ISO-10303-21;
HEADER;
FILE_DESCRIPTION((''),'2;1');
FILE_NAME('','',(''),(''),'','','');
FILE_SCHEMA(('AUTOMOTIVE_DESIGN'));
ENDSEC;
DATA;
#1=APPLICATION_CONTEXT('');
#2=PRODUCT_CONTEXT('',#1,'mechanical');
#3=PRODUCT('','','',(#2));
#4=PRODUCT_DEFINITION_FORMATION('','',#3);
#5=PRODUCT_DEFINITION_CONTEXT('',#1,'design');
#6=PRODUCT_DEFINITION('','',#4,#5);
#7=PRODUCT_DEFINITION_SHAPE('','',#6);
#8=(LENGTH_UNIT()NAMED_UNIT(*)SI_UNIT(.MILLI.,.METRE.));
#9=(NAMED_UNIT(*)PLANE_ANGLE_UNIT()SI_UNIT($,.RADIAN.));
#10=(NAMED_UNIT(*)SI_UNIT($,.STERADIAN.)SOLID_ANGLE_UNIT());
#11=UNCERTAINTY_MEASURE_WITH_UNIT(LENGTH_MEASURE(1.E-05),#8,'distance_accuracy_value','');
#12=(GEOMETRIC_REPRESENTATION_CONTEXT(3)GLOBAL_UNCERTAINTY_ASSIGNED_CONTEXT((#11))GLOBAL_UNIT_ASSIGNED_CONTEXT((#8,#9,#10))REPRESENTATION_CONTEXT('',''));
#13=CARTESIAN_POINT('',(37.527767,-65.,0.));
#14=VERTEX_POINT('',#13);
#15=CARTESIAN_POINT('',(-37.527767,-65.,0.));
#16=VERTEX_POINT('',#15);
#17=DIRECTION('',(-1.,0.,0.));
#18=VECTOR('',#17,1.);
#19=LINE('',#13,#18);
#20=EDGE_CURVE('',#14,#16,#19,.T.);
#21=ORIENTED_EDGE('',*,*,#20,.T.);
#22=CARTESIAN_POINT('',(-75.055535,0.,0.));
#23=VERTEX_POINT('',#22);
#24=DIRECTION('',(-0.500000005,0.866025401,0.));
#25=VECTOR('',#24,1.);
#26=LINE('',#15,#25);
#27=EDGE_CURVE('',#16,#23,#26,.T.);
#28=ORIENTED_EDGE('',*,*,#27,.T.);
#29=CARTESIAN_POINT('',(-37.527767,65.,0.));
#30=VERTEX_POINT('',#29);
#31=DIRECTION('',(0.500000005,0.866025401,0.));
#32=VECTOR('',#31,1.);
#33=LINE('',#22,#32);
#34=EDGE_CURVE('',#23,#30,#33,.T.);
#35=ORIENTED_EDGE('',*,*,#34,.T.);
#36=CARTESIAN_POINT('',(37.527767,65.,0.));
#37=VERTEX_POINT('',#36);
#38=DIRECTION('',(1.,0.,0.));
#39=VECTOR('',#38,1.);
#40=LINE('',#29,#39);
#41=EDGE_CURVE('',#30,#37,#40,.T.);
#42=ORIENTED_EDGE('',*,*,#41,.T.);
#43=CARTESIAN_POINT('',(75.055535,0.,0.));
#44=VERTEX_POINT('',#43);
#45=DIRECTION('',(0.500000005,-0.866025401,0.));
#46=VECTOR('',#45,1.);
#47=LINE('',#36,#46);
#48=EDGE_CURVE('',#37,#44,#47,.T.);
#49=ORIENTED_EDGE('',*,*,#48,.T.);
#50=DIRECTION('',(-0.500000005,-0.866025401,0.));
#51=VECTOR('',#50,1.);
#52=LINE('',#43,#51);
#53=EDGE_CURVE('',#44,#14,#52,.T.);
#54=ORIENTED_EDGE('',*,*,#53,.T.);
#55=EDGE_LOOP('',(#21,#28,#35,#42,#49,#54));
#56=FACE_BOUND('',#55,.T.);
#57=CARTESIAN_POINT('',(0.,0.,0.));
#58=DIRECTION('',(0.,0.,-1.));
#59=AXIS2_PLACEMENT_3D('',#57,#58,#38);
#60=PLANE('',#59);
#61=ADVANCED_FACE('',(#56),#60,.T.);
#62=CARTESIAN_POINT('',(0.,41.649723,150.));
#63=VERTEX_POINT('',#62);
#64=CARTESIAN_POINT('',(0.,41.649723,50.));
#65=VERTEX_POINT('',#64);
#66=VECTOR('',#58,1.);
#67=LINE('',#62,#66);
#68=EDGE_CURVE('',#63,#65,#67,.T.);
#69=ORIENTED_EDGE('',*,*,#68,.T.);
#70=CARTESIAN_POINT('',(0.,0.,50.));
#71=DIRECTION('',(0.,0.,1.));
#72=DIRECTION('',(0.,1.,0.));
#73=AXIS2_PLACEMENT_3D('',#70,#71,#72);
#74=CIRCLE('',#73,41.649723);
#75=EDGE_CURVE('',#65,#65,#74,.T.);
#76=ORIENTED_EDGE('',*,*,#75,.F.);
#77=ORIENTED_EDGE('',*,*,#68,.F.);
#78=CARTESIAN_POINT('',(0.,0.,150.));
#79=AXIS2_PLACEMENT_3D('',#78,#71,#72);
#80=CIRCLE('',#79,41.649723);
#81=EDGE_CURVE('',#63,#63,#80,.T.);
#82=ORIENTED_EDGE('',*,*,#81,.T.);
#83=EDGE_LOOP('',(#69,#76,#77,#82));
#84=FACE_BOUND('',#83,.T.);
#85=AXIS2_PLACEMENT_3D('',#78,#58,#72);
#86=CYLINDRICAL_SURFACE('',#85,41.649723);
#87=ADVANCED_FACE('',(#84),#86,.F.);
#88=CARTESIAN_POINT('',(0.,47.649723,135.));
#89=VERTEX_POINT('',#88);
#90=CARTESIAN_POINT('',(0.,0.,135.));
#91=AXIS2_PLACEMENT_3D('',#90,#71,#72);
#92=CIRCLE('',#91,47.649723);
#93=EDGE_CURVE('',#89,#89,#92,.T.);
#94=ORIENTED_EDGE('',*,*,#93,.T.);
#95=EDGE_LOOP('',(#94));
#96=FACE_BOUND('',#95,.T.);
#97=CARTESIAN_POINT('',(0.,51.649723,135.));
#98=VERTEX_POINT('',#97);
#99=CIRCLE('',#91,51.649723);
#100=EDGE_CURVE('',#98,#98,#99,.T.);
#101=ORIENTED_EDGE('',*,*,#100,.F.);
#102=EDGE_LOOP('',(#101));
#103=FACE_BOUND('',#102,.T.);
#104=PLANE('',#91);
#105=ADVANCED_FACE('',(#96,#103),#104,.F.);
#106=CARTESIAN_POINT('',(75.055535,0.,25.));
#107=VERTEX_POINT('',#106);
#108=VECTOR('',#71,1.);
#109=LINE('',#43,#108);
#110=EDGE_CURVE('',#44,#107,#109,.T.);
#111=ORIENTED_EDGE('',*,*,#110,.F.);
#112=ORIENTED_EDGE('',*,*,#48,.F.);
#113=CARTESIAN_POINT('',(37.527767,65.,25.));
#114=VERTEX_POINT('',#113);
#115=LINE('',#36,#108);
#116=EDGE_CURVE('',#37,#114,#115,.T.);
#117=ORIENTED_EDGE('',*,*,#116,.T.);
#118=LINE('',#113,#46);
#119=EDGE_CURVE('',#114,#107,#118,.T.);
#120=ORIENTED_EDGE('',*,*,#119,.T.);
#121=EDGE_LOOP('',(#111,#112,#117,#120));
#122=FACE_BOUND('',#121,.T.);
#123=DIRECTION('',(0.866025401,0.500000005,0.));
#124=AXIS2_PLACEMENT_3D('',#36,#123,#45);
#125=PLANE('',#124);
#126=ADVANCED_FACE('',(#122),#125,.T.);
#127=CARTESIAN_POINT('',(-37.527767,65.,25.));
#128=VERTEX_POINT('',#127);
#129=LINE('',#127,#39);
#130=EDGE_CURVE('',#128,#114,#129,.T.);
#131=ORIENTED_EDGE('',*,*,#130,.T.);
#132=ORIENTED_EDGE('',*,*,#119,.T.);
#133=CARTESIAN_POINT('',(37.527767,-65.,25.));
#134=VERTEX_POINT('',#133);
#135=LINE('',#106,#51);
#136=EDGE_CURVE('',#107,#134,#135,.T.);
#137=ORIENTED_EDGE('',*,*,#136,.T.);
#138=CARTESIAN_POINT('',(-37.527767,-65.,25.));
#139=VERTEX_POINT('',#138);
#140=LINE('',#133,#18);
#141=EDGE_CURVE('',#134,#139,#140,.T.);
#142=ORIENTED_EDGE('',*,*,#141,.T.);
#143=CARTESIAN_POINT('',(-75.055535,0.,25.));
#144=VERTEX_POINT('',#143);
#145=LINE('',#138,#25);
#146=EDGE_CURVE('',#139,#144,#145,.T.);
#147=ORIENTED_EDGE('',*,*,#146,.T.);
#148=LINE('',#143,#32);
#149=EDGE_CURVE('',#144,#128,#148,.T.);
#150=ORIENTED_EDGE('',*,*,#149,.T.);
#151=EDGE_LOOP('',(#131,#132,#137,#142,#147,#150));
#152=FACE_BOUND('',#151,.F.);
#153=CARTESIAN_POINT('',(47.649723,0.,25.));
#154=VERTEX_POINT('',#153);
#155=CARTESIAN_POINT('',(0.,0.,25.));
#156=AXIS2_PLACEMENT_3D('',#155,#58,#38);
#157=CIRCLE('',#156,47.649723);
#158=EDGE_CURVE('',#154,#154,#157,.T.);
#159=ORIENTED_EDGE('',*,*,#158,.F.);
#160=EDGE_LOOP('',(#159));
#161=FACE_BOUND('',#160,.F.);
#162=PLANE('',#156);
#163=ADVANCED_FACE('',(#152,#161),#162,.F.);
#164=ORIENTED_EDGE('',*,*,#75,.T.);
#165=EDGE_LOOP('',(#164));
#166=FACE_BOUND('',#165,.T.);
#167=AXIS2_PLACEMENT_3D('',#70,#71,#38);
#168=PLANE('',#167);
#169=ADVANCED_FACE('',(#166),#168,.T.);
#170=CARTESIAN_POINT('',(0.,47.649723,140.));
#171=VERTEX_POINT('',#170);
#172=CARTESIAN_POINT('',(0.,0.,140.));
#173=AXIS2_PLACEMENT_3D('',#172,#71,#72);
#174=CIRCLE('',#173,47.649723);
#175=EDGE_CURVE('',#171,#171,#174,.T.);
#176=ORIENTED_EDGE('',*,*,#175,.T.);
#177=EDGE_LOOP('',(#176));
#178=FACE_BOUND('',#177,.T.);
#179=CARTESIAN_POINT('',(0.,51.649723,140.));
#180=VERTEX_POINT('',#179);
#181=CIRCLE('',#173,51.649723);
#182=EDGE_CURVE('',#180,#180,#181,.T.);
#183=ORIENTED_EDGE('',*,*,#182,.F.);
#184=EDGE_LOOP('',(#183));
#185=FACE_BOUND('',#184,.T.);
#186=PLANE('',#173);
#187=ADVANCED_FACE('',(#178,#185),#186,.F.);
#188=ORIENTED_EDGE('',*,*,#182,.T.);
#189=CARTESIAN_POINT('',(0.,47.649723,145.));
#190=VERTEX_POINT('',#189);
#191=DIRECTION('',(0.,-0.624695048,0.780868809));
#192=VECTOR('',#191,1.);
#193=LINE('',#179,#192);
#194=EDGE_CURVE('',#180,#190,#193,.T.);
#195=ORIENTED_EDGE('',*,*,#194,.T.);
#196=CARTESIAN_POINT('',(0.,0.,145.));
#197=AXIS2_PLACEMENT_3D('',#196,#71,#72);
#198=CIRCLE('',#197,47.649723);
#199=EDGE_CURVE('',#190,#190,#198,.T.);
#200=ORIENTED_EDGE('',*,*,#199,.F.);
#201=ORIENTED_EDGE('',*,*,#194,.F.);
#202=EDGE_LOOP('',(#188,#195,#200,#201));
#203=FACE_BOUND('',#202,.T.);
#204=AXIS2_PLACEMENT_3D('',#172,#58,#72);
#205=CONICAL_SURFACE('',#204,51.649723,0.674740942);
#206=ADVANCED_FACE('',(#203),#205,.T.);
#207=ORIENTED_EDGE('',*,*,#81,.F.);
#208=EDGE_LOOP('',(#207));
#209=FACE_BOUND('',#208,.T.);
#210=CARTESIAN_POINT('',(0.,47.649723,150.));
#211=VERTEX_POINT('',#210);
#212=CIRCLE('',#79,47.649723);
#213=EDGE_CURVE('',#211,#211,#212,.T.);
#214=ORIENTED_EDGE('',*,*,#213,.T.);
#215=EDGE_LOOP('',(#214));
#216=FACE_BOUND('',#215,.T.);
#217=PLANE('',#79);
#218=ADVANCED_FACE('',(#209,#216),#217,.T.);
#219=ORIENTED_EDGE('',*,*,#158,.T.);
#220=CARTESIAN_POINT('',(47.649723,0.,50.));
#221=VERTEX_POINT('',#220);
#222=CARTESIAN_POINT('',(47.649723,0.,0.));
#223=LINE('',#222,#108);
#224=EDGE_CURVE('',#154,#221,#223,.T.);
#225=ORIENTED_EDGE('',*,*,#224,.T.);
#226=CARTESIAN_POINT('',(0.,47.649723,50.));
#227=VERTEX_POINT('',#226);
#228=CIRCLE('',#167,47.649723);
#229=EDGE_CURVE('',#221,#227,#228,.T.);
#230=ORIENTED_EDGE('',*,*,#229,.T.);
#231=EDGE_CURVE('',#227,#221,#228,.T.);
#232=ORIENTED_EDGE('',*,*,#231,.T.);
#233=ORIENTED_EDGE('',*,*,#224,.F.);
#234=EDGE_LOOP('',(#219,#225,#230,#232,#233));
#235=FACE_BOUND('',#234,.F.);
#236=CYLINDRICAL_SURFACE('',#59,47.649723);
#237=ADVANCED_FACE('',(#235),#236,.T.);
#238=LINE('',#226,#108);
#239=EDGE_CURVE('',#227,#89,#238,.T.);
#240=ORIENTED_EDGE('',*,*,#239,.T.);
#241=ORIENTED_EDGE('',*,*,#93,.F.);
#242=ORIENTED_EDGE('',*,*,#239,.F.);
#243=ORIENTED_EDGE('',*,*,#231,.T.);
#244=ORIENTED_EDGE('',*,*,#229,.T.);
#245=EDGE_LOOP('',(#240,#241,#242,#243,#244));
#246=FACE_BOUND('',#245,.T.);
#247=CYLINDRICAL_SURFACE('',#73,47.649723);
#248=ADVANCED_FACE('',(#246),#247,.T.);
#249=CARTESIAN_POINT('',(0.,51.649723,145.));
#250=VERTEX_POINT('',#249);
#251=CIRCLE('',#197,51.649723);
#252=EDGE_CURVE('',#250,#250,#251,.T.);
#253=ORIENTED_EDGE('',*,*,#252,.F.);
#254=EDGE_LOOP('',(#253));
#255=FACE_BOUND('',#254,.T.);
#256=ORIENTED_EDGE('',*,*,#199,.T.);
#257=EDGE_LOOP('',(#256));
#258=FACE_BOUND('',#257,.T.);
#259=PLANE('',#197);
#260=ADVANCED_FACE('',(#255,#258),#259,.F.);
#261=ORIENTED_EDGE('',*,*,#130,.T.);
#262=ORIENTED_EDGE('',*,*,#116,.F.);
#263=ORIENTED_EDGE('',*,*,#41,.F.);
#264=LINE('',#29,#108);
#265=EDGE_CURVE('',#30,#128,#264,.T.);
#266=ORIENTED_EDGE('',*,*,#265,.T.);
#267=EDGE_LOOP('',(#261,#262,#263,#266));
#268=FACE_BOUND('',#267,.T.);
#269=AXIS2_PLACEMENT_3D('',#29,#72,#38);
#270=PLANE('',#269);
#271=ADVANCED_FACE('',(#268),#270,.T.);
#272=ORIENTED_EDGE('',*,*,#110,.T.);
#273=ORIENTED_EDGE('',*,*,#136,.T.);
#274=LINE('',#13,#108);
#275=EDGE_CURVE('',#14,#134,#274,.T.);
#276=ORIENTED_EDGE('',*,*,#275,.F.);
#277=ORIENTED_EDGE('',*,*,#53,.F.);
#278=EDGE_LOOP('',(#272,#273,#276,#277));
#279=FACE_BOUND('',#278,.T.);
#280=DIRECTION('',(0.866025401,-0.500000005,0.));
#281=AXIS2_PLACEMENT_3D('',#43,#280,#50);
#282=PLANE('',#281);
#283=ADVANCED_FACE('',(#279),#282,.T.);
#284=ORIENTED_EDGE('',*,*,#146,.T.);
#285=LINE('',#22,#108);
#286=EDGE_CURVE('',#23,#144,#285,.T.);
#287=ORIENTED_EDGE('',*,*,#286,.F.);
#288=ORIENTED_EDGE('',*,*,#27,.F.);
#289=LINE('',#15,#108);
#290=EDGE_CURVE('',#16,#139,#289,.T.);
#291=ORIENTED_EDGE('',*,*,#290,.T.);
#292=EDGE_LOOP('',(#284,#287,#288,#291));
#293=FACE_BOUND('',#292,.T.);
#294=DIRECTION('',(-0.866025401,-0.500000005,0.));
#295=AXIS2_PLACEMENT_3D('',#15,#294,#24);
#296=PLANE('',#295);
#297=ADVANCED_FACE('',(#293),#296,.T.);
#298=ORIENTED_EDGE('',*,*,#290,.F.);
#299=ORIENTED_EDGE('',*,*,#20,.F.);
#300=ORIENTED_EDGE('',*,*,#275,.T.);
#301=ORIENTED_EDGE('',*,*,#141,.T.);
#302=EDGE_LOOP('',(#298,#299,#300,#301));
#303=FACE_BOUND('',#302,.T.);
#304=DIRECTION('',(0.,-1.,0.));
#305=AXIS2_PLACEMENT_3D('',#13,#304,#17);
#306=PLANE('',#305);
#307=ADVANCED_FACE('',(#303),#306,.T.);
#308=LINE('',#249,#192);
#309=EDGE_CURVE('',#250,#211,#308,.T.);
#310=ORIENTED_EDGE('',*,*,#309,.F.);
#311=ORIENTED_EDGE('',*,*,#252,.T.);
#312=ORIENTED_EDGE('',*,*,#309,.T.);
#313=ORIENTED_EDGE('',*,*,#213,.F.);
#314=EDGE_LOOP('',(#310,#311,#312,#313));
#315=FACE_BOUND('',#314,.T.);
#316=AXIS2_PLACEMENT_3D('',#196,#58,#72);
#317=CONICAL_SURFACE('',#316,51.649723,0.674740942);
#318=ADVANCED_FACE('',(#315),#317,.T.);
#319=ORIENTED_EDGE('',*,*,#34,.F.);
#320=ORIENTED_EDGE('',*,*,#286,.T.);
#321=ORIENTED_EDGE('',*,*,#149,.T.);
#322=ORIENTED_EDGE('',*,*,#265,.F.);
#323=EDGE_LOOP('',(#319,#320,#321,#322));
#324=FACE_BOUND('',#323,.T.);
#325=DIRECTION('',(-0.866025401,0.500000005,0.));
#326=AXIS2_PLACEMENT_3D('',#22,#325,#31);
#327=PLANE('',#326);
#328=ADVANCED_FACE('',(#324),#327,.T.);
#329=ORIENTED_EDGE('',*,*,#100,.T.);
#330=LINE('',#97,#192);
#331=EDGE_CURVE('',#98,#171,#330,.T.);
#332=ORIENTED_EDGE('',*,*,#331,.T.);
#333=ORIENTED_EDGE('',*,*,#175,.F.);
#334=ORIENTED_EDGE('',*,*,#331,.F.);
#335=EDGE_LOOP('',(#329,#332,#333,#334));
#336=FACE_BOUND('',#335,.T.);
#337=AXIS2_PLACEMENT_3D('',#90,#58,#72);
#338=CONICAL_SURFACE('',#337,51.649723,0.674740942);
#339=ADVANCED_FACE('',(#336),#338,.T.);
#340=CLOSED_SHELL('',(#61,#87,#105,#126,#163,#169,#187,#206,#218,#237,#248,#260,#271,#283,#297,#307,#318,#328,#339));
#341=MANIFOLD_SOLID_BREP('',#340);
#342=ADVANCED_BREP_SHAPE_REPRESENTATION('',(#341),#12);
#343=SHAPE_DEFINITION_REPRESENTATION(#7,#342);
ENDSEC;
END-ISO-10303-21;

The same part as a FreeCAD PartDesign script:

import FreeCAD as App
import Part
import Sketcher
Q = App.Units.Quantity


def add_polygon(sketch, points):
    """Adds a closed chain of lines whose ends are joined by coincident constraints."""
    first, n = sketch.GeometryCount, len(points)
    for a, b in zip(points, points[1:] + points[:1]):
        sketch.addGeometry(Part.LineSegment(App.Vector(*a, 0), App.Vector(*b, 0)), False)
    for i in range(n):
        sketch.addConstraint(Sketcher.Constraint("Coincident", first + i, 2, first + (i + 1) % n, 1))

doc = App.newDocument("Part")
body = doc.addObject("PartDesign::Body", "Body")

# Sketch on XY plane
sketch1 = body.newObject("Sketcher::SketchObject", "Sketch")
sketch1.AttachmentSupport = (doc.getObject("XY_Plane"), [""])
sketch1.MapMode = "FlatFace"
sketch1.addGeometry(Part.Circle(App.Vector(0, 0, 0), App.Vector(0, 0, 1), 47.649723), False)
sketch1.addConstraint(Sketcher.Constraint("Coincident", 0, 3, -1, 1))
sketch1.addConstraint(Sketcher.Constraint("Diameter", 0, Q("95.299446 mm")))
pad1 = body.newObject("PartDesign::Pad", "Pad")
pad1.Profile = sketch1
pad1.Length = 50

# Sketch on YZ plane
sketch2 = body.newObject("Sketcher::SketchObject", "Sketch001")
sketch2.AttachmentSupport = (doc.getObject("YZ_Plane"), [""])
sketch2.MapMode = "FlatFace"
add_polygon(sketch2, [(41.649723, 150), (41.649723, 50), (47.649723, 50), (47.649723, 135), (51.649723, 135), (47.649723, 140), (51.649723, 140), (47.649723, 145), (51.649723, 145), (47.649723, 150)])  # lines 0-9
sketch2.addConstraint(Sketcher.Constraint("Vertical", 0))
sketch2.addConstraint(Sketcher.Constraint("Horizontal", 1))
sketch2.addConstraint(Sketcher.Constraint("Vertical", 2))
sketch2.addConstraint(Sketcher.Constraint("Horizontal", 3))
sketch2.addConstraint(Sketcher.Constraint("Horizontal", 5))
sketch2.addConstraint(Sketcher.Constraint("Horizontal", 7))
sketch2.addConstraint(Sketcher.Constraint("Horizontal", 9))
sketch2.addConstraint(Sketcher.Constraint("Parallel", 4, 6))
sketch2.addConstraint(Sketcher.Constraint("Parallel", 6, 8))
sketch2.addConstraint(Sketcher.Constraint("Vertical", 2, 2, 4, 2))
sketch2.addConstraint(Sketcher.Constraint("Vertical", 3, 2, 5, 2))
sketch2.addConstraint(Sketcher.Constraint("Vertical", 4, 2, 6, 2))
sketch2.addConstraint(Sketcher.Constraint("Vertical", 5, 2, 7, 2))
sketch2.addConstraint(Sketcher.Constraint("Vertical", 6, 2, 8, 2))
sketch2.addConstraint(Sketcher.Constraint("DistanceX", 1, 1, 1, 2, Q("6 mm")))
sketch2.addConstraint(Sketcher.Constraint("DistanceX", 3, 1, 3, 2, Q("4 mm")))
sketch2.addConstraint(Sketcher.Constraint("DistanceY", 0, 2, 0, 1, Q("100 mm")))
sketch2.addConstraint(Sketcher.Constraint("DistanceY", 2, 1, 2, 2, Q("85 mm")))
sketch2.addConstraint(Sketcher.Constraint("DistanceY", -1, 1, 0, 2, Q("50 mm")))
sketch2.addConstraint(Sketcher.Constraint("DistanceX", -1, 1, 0, 2, Q("41.649723 mm")))
revolution = body.newObject("PartDesign::Revolution", "Revolution")
revolution.Profile = sketch2
revolution.ReferenceAxis = (sketch2, ["V_Axis"])
revolution.Angle = 360

# Sketch on XY plane
sketch3 = body.newObject("Sketcher::SketchObject", "Sketch002")
sketch3.AttachmentSupport = (doc.getObject("XY_Plane"), [""])
sketch3.MapMode = "FlatFace"
add_polygon(sketch3, [(37.527767, 65), (75.055535, 0), (37.527767, -65), (-37.527767, -65), (-75.055535, 0), (-37.527767, 65)])  # lines 0-5
sketch3.addConstraint(Sketcher.Constraint("Horizontal", 2))
sketch3.addConstraint(Sketcher.Constraint("Horizontal", 5))
sketch3.addConstraint(Sketcher.Constraint("Symmetric", 0, 2, 3, 2, -1, 1))
sketch3.addConstraint(Sketcher.Constraint("Symmetric", 1, 2, 4, 2, -1, 1))
sketch3.addConstraint(Sketcher.Constraint("PointOnObject", 0, 2, -1))
sketch3.addConstraint(Sketcher.Constraint("Parallel", 0, 3))
sketch3.addConstraint(Sketcher.Constraint("Vertical", 2, 2, 4, 2))
sketch3.addConstraint(Sketcher.Constraint("Angle", 0, Q("-60 deg")))
sketch3.addConstraint(Sketcher.Constraint("DistanceY", 1, 2, -1, 1, Q("65 mm")))
sketch3.addConstraint(Sketcher.Constraint("DistanceX", 2, 2, 2, 1, Q("75.055534 mm")))
pad2 = body.newObject("PartDesign::Pad", "Pad001")
pad2.Profile = sketch3
pad2.Length = 25

doc.recompute()
